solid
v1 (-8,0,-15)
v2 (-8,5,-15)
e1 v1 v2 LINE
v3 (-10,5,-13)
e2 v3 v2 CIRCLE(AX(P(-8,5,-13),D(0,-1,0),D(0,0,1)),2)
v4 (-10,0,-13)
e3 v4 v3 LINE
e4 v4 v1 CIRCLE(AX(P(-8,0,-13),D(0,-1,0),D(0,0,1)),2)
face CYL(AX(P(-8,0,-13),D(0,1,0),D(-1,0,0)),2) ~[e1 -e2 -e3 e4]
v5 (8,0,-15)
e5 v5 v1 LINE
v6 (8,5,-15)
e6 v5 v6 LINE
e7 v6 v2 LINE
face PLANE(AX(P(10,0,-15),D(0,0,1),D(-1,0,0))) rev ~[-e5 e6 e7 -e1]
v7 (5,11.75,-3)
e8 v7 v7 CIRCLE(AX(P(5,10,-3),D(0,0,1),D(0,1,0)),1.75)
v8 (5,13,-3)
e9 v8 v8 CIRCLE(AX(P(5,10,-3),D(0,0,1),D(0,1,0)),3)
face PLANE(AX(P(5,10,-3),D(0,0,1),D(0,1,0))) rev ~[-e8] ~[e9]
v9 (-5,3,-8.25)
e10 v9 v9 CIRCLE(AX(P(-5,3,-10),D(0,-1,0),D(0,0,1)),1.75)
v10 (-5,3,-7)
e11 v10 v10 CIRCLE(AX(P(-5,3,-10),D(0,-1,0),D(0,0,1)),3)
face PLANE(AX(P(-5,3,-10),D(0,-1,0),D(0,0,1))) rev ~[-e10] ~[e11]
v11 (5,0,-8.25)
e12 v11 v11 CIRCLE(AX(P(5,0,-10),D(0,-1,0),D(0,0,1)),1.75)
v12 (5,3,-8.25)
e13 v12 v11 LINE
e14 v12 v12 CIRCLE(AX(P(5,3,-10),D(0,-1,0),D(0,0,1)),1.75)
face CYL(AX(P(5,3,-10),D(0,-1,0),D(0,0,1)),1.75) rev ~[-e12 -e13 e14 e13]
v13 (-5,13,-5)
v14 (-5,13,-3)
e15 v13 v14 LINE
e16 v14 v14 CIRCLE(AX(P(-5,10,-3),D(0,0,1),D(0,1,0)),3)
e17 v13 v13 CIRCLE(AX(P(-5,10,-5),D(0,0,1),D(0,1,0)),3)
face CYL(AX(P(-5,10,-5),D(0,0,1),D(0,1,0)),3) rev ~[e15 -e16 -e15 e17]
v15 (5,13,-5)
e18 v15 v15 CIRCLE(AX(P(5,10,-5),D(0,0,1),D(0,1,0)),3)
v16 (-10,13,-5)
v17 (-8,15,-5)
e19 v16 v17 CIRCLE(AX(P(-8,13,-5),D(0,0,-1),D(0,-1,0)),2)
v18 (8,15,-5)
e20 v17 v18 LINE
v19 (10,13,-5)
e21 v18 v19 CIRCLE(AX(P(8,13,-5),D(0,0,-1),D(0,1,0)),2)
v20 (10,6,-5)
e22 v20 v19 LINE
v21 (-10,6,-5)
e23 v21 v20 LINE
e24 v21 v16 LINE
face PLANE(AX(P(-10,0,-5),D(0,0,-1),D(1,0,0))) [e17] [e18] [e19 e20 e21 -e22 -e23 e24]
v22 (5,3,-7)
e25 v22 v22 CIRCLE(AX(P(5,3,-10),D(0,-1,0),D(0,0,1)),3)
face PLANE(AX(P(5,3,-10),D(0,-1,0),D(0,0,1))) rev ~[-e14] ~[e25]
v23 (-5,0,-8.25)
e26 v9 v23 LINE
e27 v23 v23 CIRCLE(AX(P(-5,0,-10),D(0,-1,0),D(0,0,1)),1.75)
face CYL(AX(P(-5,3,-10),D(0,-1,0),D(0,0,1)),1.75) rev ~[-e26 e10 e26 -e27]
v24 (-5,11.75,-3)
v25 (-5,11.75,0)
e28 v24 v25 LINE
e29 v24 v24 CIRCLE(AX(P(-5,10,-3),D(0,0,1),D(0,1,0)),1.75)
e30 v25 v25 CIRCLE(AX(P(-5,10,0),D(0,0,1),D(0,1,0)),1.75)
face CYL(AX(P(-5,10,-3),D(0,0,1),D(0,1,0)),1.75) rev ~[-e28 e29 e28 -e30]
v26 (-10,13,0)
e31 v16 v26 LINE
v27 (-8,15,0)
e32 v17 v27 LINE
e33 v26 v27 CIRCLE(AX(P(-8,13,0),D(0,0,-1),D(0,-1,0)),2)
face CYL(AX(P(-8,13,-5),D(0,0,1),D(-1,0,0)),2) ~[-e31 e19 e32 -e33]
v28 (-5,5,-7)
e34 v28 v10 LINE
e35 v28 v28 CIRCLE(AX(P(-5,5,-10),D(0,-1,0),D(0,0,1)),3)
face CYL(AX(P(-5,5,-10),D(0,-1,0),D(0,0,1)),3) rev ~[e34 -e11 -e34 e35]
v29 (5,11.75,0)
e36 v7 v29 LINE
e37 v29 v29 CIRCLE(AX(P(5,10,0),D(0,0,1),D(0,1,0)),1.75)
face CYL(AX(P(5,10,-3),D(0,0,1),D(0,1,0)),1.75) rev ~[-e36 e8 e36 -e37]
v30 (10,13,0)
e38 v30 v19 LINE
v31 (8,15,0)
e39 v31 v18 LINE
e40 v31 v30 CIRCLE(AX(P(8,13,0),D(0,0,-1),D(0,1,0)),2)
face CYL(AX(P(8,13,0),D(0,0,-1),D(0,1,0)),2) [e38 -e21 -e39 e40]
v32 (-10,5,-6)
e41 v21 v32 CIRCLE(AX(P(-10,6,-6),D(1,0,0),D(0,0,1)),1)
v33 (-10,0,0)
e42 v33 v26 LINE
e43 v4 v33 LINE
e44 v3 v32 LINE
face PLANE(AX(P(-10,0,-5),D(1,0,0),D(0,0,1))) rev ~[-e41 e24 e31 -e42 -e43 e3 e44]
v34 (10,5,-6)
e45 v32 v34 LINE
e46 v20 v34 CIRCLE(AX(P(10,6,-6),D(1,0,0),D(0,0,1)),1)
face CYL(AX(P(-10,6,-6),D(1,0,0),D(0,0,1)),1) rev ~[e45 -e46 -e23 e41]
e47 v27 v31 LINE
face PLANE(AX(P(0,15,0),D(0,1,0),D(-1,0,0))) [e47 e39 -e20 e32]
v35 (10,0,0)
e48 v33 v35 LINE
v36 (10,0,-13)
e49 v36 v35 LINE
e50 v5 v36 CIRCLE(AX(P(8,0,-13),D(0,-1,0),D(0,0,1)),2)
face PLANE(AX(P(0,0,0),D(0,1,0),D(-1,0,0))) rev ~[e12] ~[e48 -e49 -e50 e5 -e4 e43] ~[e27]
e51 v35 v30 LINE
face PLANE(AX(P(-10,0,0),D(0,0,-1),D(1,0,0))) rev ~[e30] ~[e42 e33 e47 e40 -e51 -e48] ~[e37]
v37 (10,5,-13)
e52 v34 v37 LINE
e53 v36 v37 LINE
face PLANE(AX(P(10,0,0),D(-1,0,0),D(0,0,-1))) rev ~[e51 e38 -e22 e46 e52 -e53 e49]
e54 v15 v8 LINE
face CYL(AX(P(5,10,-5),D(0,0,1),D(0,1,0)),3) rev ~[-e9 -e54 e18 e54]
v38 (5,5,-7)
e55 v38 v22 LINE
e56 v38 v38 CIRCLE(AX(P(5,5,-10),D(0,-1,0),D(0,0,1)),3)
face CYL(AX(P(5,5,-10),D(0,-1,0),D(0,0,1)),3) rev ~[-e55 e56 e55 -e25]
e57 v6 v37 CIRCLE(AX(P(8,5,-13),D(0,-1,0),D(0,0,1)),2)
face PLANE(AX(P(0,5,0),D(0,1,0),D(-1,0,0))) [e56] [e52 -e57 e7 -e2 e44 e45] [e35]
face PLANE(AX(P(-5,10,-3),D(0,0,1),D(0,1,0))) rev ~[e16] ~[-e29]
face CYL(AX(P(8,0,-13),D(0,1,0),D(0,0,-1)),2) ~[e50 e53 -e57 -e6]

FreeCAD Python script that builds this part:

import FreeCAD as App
import Part
import Sketcher
from FreeCAD import Vector


def edges_at(feature, points):
    """Names of the edges that pass closest to the given points."""
    edges = feature.Shape.Edges
    near = lambda p: min(range(len(edges)), key=lambda i: edges[i].distToShape(Part.Vertex(*p))[0])
    return sorted({f"Edge{near(p) + 1}" for p in points})


def add_polygon(sketch, points):
    """Adds a closed chain of lines whose ends are joined by coincident constraints."""
    first, n = sketch.GeometryCount, len(points)
    for a, b in zip(points, points[1:] + points[:1]):
        sketch.addGeometry(Part.LineSegment(App.Vector(*a, 0), App.Vector(*b, 0)), False)
    for i in range(n):
        sketch.addConstraint(Sketcher.Constraint("Coincident", first + i, 2, first + (i + 1) % n, 1))

doc = App.newDocument("Part")
body = doc.addObject("PartDesign::Body", "Body")

# Sketch on XZ plane
sketch1 = body.newObject("Sketcher::SketchObject", "Sketch")
sketch1.AttachmentSupport = (doc.getObject("XZ_Plane"), [""])
sketch1.MapMode = "FlatFace"
add_polygon(sketch1, [(-10, -5), (-10, 0), (10, 0), (10, -5)])  # lines 0-3
sketch1.addConstraint(Sketcher.Constraint("Vertical", 0))
sketch1.addConstraint(Sketcher.Constraint("Horizontal", 1))
sketch1.addConstraint(Sketcher.Constraint("Vertical", 2))
sketch1.addConstraint(Sketcher.Constraint("Horizontal", 3))
sketch1.addConstraint(Sketcher.Constraint("Symmetric", 0, 2, 1, 2, -1, 1))
sketch1.addConstraint(Sketcher.Constraint("DistanceX", 1, 1, 1, 2, 20.0))
sketch1.addConstraint(Sketcher.Constraint("DistanceY", 0, 1, 0, 2, 5.0))
pad1 = body.newObject("PartDesign::Pad", "Pad")
pad1.Profile = sketch1
pad1.Length = 15
pad1.Reversed = True

# Sketch on XZ plane
sketch2 = body.newObject("Sketcher::SketchObject", "Sketch001")
sketch2.AttachmentSupport = (doc.getObject("XZ_Plane"), [""])
sketch2.MapMode = "FlatFace"
add_polygon(sketch2, [(-10, -15), (-10, -5), (10, -5), (10, -15)])  # lines 0-3
sketch2.addConstraint(Sketcher.Constraint("Vertical", 0))
sketch2.addConstraint(Sketcher.Constraint("Horizontal", 1))
sketch2.addConstraint(Sketcher.Constraint("Vertical", 2))
sketch2.addConstraint(Sketcher.Constraint("Horizontal", 3))
sketch2.addConstraint(Sketcher.Constraint("DistanceX", 1, 1, 1, 2, 20.0))
sketch2.addConstraint(Sketcher.Constraint("DistanceY", 2, 2, -1, 1, 15.0))
sketch2.addConstraint(Sketcher.Constraint("DistanceY", 0, 1, 0, 2, 10.0))
sketch2.addConstraint(Sketcher.Constraint("DistanceX", 0, 2, -1, 1, 10.0))
pad2 = body.newObject("PartDesign::Pad", "Pad001")
pad2.Profile = sketch2
pad2.Length = 5
pad2.Reversed = True

# Sketch on XZ plane
sketch3 = body.newObject("Sketcher::SketchObject", "Sketch002")
sketch3.AttachmentSupport = (doc.getObject("XZ_Plane"), [""])
sketch3.MapMode = "FlatFace"
sketch3.AttachmentOffset = App.Placement(Vector(0, 0, -5), App.Rotation())
sketch3.addGeometry(Part.Circle(Vector(-5, -10, 0), Vector(0, 0, 1), 1.8), False)
sketch3.addConstraint(Sketcher.Constraint("Diameter", 0, 3.5))
sketch3.addConstraint(Sketcher.Constraint("DistanceX", 0, 3, -1, 1, 5.0))
sketch3.addConstraint(Sketcher.Constraint("DistanceY", 0, 3, -1, 1, 10.0))
doc.recompute()
hole = body.newObject("PartDesign::Hole", "Hole")
hole.Profile = sketch3
hole.ThreadType = "None"
hole.Diameter = 3.5
hole.DepthType = "ThroughAll"
hole.HoleCutType = "Counterbore"
hole.HoleCutDiameter = 6
hole.HoleCutDepth = 2
hole.Reversed = True

# Sketch on XZ plane
sketch4 = body.newObject("Sketcher::SketchObject", "Sketch003")
sketch4.AttachmentSupport = (doc.getObject("XZ_Plane"), [""])
sketch4.MapMode = "FlatFace"
sketch4.AttachmentOffset = App.Placement(Vector(0, 0, -5), App.Rotation())
sketch4.addGeometry(Part.Circle(Vector(5, -10, 0), Vector(0, 0, 1), 1.8), False)
sketch4.addConstraint(Sketcher.Constraint("Diameter", 0, 3.5))
sketch4.addConstraint(Sketcher.Constraint("DistanceX", -1, 1, 0, 3, 5.0))
sketch4.addConstraint(Sketcher.Constraint("DistanceY", 0, 3, -1, 1, 10.0))
doc.recompute()
hole2 = body.newObject("PartDesign::Hole", "Hole001")
hole2.Profile = sketch4
hole2.ThreadType = "None"
hole2.Diameter = 3.5
hole2.DepthType = "ThroughAll"
hole2.HoleCutType = "Counterbore"
hole2.HoleCutDiameter = 6
hole2.HoleCutDepth = 2
hole2.Reversed = True

# Sketch on XY plane
sketch5 = body.newObject("Sketcher::SketchObject", "Sketch004")
sketch5.AttachmentSupport = (doc.getObject("XY_Plane"), [""])
sketch5.MapMode = "FlatFace"
sketch5.AttachmentOffset = App.Placement(Vector(0, 0, -5), App.Rotation())
sketch5.addGeometry(Part.Circle(Vector(-5, 10, 0), Vector(0, 0, 1), 1.8), False)
sketch5.addConstraint(Sketcher.Constraint("Diameter", 0, 3.5))
sketch5.addConstraint(Sketcher.Constraint("DistanceX", 0, 3, -1, 1, 5.0))
sketch5.addConstraint(Sketcher.Constraint("DistanceY", -1, 1, 0, 3, 10.0))
doc.recompute()
hole3 = body.newObject("PartDesign::Hole", "Hole002")
hole3.Profile = sketch5
hole3.ThreadType = "None"
hole3.Diameter = 3.5
hole3.DepthType = "ThroughAll"
hole3.HoleCutType = "Counterbore"
hole3.HoleCutDiameter = 6
hole3.HoleCutDepth = 2
hole3.Reversed = True

# Sketch on XY plane
sketch6 = body.newObject("Sketcher::SketchObject", "Sketch005")
sketch6.AttachmentSupport = (doc.getObject("XY_Plane"), [""])
sketch6.MapMode = "FlatFace"
sketch6.AttachmentOffset = App.Placement(Vector(0, 0, -5), App.Rotation())
sketch6.addGeometry(Part.Circle(Vector(5, 10, 0), Vector(0, 0, 1), 1.8), False)
sketch6.addConstraint(Sketcher.Constraint("Diameter", 0, 3.5))
sketch6.addConstraint(Sketcher.Constraint("DistanceX", -1, 1, 0, 3, 5.0))
sketch6.addConstraint(Sketcher.Constraint("DistanceY", -1, 1, 0, 3, 10.0))
doc.recompute()
hole4 = body.newObject("PartDesign::Hole", "Hole003")
hole4.Profile = sketch6
hole4.ThreadType = "None"
hole4.Diameter = 3.5
hole4.DepthType = "ThroughAll"
hole4.HoleCutType = "Counterbore"
hole4.HoleCutDiameter = 6
hole4.HoleCutDepth = 2
hole4.Reversed = True
doc.recompute()

fillet = body.newObject("PartDesign::Fillet", "Fillet")
fillet.Base = (hole4, edges_at(hole4, [
    (-10, 2.5, -15),
    (10, 2.5, -15),
    (10, 15, -2.5),
    (-10, 15, -2.5),
]))
fillet.Radius = 2
doc.recompute()

fillet2 = body.newObject("PartDesign::Fillet", "Fillet001")
fillet2.Base = (fillet, edges_at(fillet, [(0, 5, -5)]))
fillet2.Radius = 1

doc.recompute()
